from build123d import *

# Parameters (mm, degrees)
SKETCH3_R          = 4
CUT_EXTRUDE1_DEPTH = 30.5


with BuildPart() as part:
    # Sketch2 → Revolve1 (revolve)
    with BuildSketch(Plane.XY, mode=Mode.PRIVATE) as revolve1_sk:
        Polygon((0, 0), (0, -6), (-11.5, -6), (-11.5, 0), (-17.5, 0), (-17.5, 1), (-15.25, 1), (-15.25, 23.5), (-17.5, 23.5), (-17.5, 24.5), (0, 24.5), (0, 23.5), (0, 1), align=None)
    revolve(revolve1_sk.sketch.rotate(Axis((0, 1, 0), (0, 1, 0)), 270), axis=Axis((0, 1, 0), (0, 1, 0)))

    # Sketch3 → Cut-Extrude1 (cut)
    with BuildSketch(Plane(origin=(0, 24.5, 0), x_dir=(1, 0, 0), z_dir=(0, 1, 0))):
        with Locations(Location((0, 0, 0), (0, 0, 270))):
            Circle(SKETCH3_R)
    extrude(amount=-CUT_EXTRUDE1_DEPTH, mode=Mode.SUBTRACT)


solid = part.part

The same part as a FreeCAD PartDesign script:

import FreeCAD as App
import Part
import Sketcher

V = App.Vector
Q = App.Units.Quantity

doc = App.newDocument("Part")
body = doc.addObject("PartDesign::Body", "Body")

# Sketch on XY plane
sketch1 = body.newObject("Sketcher::SketchObject", "Sketch")
sketch1.AttachmentSupport = (doc.getObject("XY_Plane"), [""])
sketch1.MapMode = "FlatFace"
sketch1.addGeometry([
    Part.LineSegment(V(0, -6, 0), V(0, 24.5, 0)),  # 0
    Part.LineSegment(V(0, 24.5, 0), V(-17.5, 24.5, 0)),  # 1
    Part.LineSegment(V(-17.5, 24.5, 0), V(-17.5, 23.5, 0)),  # 2
    Part.LineSegment(V(-17.5, 23.5, 0), V(-15.2, 23.5, 0)),  # 3
    Part.LineSegment(V(-15.2, 23.5, 0), V(-15.2, 1, 0)),  # 4
    Part.LineSegment(V(-15.2, 1, 0), V(-17.5, 1, 0)),  # 5
    Part.LineSegment(V(-17.5, 1, 0), V(-17.5, 0, 0)),  # 6
    Part.LineSegment(V(-17.5, 0, 0), V(-11.5, 0, 0)),  # 7
    Part.LineSegment(V(-11.5, 0, 0), V(-11.5, -6, 0)),  # 8
    Part.LineSegment(V(-11.5, -6, 0), V(0, -6, 0)),  # 9
], False)
sketch1.addConstraint([
    Sketcher.Constraint("Coincident", 0, 2, 1, 1),
    Sketcher.Constraint("Coincident", 1, 2, 2, 1),
    Sketcher.Constraint("Coincident", 2, 2, 3, 1),
    Sketcher.Constraint("Coincident", 3, 2, 4, 1),
    Sketcher.Constraint("Coincident", 4, 2, 5, 1),
    Sketcher.Constraint("Coincident", 5, 2, 6, 1),
    Sketcher.Constraint("Coincident", 6, 2, 7, 1),
    Sketcher.Constraint("Coincident", 7, 2, 8, 1),
    Sketcher.Constraint("Coincident", 8, 2, 9, 1),
    Sketcher.Constraint("Coincident", 9, 2, 0, 1),
    Sketcher.Constraint("Vertical", 0),
    Sketcher.Constraint("Horizontal", 1),
    Sketcher.Constraint("Vertical", 2),
    Sketcher.Constraint("Horizontal", 3),
    Sketcher.Constraint("Vertical", 4),
    Sketcher.Constraint("Horizontal", 5),
    Sketcher.Constraint("Vertical", 6),
    Sketcher.Constraint("Horizontal", 7),
    Sketcher.Constraint("Vertical", 8),
    Sketcher.Constraint("Horizontal", 9),
    Sketcher.Constraint("PointOnObject", 0, 2, -2),
    Sketcher.Constraint("PointOnObject", 6, 2, -1),
    Sketcher.Constraint("Vertical", 2, 2, 5, 2),
    Sketcher.Constraint("Equal", 2, 6),
    Sketcher.Constraint("Equal", 7, 8),
    Sketcher.Constraint("DistanceX", 7, 1, 7, 2, Q("6 mm")),
    Sketcher.Constraint("DistanceY", 2, 2, 2, 1, Q("1 mm")),
    Sketcher.Constraint("DistanceX", 1, 2, 1, 1, Q("17.5 mm")),
    Sketcher.Constraint("DistanceY", 0, 1, 0, 2, Q("30.5 mm")),
    Sketcher.Constraint("DistanceX", 3, 1, 3, 2, Q("2.25 mm")),
])
revolution = body.newObject("PartDesign::Revolution", "Revolution")
revolution.Profile = sketch1
revolution.ReferenceAxis = (sketch1, ["V_Axis"])
revolution.Angle = 360

# Sketch on XZ plane
sketch2 = body.newObject("Sketcher::SketchObject", "Sketch001")
sketch2.AttachmentSupport = (doc.getObject("XZ_Plane"), [""])
sketch2.MapMode = "FlatFace"
sketch2.AttachmentOffset = App.Placement(V(0, 0, -24.5), App.Rotation())
sketch2.addGeometry(Part.Circle(V(0, 0, 0), V(0, 0, 1), 4), False)
sketch2.addConstraint([
    Sketcher.Constraint("Coincident", 0, 3, -1, 1),
    Sketcher.Constraint("Diameter", 0, Q("8 mm")),
])
pocket1 = body.newObject("PartDesign::Pocket", "Pocket")
pocket1.Profile = sketch2
pocket1.Length = 30.5
pocket1.Reversed = True

doc.recompute()
